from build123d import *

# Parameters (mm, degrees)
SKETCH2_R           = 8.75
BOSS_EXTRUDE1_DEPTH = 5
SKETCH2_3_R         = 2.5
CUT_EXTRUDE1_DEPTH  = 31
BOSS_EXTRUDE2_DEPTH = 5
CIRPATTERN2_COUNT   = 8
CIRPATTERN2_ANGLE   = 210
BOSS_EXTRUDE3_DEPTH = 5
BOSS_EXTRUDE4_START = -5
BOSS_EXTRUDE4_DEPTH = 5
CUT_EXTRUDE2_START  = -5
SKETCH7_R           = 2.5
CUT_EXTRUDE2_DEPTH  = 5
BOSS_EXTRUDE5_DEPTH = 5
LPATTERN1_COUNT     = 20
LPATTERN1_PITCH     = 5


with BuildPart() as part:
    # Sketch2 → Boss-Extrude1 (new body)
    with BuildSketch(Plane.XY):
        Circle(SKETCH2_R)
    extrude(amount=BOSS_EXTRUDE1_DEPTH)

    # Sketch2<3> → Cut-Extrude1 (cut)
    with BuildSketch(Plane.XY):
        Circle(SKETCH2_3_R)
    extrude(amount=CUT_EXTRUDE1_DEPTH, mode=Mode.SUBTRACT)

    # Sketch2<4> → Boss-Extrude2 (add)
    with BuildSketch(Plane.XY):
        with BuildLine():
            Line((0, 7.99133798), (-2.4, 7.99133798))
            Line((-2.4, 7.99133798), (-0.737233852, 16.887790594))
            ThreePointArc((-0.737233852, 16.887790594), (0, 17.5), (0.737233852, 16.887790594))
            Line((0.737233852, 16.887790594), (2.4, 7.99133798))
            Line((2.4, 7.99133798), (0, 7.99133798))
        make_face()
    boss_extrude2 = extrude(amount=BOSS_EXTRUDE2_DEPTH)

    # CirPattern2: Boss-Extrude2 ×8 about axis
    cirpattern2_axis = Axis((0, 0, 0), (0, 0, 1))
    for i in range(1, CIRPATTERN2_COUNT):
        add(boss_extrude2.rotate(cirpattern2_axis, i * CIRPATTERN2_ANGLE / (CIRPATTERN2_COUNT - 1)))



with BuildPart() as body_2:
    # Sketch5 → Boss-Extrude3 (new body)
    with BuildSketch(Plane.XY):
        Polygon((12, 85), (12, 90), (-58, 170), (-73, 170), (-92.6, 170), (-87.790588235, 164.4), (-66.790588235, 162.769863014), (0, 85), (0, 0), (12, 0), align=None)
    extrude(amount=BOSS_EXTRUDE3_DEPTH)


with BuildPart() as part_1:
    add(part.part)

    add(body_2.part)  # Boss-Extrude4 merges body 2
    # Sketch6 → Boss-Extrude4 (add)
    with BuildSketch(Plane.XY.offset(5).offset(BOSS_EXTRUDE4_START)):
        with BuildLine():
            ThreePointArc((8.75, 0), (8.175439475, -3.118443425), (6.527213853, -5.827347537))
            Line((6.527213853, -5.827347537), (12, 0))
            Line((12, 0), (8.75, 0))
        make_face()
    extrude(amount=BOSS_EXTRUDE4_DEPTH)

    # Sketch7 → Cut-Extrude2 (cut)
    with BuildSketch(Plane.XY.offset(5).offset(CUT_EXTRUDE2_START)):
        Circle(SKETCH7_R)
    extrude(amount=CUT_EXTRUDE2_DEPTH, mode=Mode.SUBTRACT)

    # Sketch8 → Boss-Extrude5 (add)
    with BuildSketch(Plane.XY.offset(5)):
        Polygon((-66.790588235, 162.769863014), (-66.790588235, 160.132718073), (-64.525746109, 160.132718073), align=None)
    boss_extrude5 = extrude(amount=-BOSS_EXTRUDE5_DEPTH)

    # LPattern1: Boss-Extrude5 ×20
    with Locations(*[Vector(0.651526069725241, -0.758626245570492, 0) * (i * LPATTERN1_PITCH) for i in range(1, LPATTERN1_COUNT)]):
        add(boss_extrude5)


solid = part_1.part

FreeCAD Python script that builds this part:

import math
import FreeCAD as App
import Part
import Sketcher
Q = App.Units.Quantity

doc = App.newDocument("Part")
body = doc.addObject("PartDesign::Body", "Body")

# Sketch on XY plane
sketch1 = body.newObject("Sketcher::SketchObject", "Sketch")
sketch1.AttachmentSupport = (doc.getObject("XY_Plane"), [""])
sketch1.MapMode = "FlatFace"
sketch1.addGeometry(Part.Circle(App.Vector(0, 0, 0), App.Vector(0, 0, 1), 8.75), False)
sketch1.addConstraint([
    Sketcher.Constraint("Coincident", 0, 3, -1, 1),
    Sketcher.Constraint("Diameter", 0, Q("17.5 mm")),
])
pad1 = body.newObject("PartDesign::Pad", "Pad")
pad1.Profile = sketch1
pad1.Length = 5

# Sketch on XY plane
sketch2 = body.newObject("Sketcher::SketchObject", "Sketch001")
sketch2.AttachmentSupport = (doc.getObject("XY_Plane"), [""])
sketch2.MapMode = "FlatFace"
sketch2.addGeometry(Part.Circle(App.Vector(0, 0, 0), App.Vector(0, 0, 1), 2.5), False)
sketch2.addConstraint([
    Sketcher.Constraint("Coincident", 0, 3, -1, 1),
    Sketcher.Constraint("Diameter", 0, Q("5 mm")),
])
pocket1 = body.newObject("PartDesign::Pocket", "Pocket")
pocket1.Profile = sketch2
pocket1.Length = 31
pocket1.Reversed = True

# Sketch on XY plane
sketch3 = body.newObject("Sketcher::SketchObject", "Sketch002")
sketch3.AttachmentSupport = (doc.getObject("XY_Plane"), [""])
sketch3.MapMode = "FlatFace"
sketch3.addGeometry([
    Part.LineSegment(App.Vector(-0.737234, 16.887791, 0), App.Vector(-2.4, 7.991338, 0)),
    Part.LineSegment(App.Vector(-2.4, 7.991338, 0), App.Vector(2.4, 7.991338, 0)),
    Part.LineSegment(App.Vector(2.4, 7.991338, 0), App.Vector(0.737234, 16.887791, 0)),
    Part.ArcOfCircle(Part.Circle(App.Vector(0, 16.75, 0), App.Vector(0, 0, 1), 0.75), math.radians(10.586561), math.radians(169.413439)),
], False)
sketch3.addConstraint([
    Sketcher.Constraint("Coincident", 0, 2, 1, 1),
    Sketcher.Constraint("Coincident", 1, 2, 2, 1),
    Sketcher.Constraint("Coincident", 2, 2, 3, 1),
    Sketcher.Constraint("Coincident", 3, 2, 0, 1),
    Sketcher.Constraint("Horizontal", 1),
    Sketcher.Constraint("PointOnObject", 3, 3, -2),
    Sketcher.Constraint("Radius", 3, Q("0.75 mm")),
    Sketcher.Constraint("DistanceX", 1, 1, 1, 2, Q("4.8 mm")),
    Sketcher.Constraint("DistanceX", 0, 2, -1, 1, Q("2.4 mm")),
    Sketcher.Constraint("DistanceY", -1, 1, 3, 3, Q("16.75 mm")),
    Sketcher.Constraint("DistanceY", -1, 1, 2, 2, Q("16.887791 mm")),
    Sketcher.Constraint("DistanceY", -1, 1, 3, 2, Q("16.887791 mm")),
    Sketcher.Constraint("Distance", 0, Q("9.050506 mm")),
])
pad2 = body.newObject("PartDesign::Pad", "Pad001")
pad2.Profile = sketch3
pad2.Length = 5
doc.recompute()

polarpattern = body.newObject("PartDesign::PolarPattern", "PolarPattern")
polarpattern.Originals = [pad2]
polarpattern.Axis = (doc.getObject("Z_Axis"), [""])
polarpattern.Angle = 210
polarpattern.Occurrences = 8
body.Tip = polarpattern
body2 = doc.addObject("PartDesign::Body", "Body001")

# Sketch on XY plane
sketch4 = body2.newObject("Sketcher::SketchObject", "Sketch003")
sketch4.AttachmentSupport = (doc.getObject("XY_Plane001"), [""])
sketch4.MapMode = "FlatFace"
sketch4.addGeometry([
    Part.LineSegment(App.Vector(12, 90, 0), App.Vector(-58, 170, 0)),  # 0
    Part.LineSegment(App.Vector(-58, 170, 0), App.Vector(-92.6, 170, 0)),  # 1
    Part.LineSegment(App.Vector(-92.6, 170, 0), App.Vector(-87.790588, 164.4, 0)),  # 2
    Part.LineSegment(App.Vector(-87.790588, 164.4, 0), App.Vector(-66.790588, 162.769863, 0)),  # 3
    Part.LineSegment(App.Vector(-66.790588, 162.769863, 0), App.Vector(0, 85, 0)),  # 4
    Part.LineSegment(App.Vector(0, 85, 0), App.Vector(0, 0, 0)),  # 5
    Part.LineSegment(App.Vector(0, 0, 0), App.Vector(12, 0, 0)),  # 6
    Part.LineSegment(App.Vector(12, 0, 0), App.Vector(12, 90, 0)),  # 7
], False)
sketch4.addConstraint([
    Sketcher.Constraint("Coincident", 0, 2, 1, 1),
    Sketcher.Constraint("Coincident", 1, 2, 2, 1),
    Sketcher.Constraint("Coincident", 2, 2, 3, 1),
    Sketcher.Constraint("Coincident", 3, 2, 4, 1),
    Sketcher.Constraint("Coincident", 4, 2, 5, 1),
    Sketcher.Constraint("Coincident", 5, 2, 6, 1),
    Sketcher.Constraint("Coincident", 6, 2, 7, 1),
    Sketcher.Constraint("Coincident", 7, 2, 0, 1),
    Sketcher.Constraint("Horizontal", 1),
    Sketcher.Constraint("Vertical", 5),
    Sketcher.Constraint("Horizontal", 6),
    Sketcher.Constraint("Vertical", 7),
    Sketcher.Constraint("Coincident", 5, 2, -1, 1),
    Sketcher.Constraint("Parallel", 2, 4),
    Sketcher.Constraint("DistanceX", 6, 1, 6, 2, Q("12 mm")),
    Sketcher.Constraint("DistanceY", 5, 2, 5, 1, Q("85 mm")),
    Sketcher.Constraint("DistanceY", 7, 1, 7, 2, Q("90 mm")),
    Sketcher.Constraint("DistanceX", 1, 2, 1, 1, Q("34.6 mm")),
    Sketcher.Constraint("DistanceX", 0, 2, -1, 1, Q("58 mm")),
    Sketcher.Constraint("DistanceY", -1, 1, 0, 2, Q("170 mm")),
    Sketcher.Constraint("DistanceX", 2, 2, 3, 2, Q("21 mm")),
    Sketcher.Constraint("DistanceY", -1, 1, 2, 2, Q("164.4 mm")),
    Sketcher.Constraint("Distance", 4, Q("102.514069 mm")),
])
pad3 = body2.newObject("PartDesign::Pad", "Pad002")
pad3.Profile = sketch4
pad3.Length = 5
doc.recompute()

boolean = body.newObject("PartDesign::Boolean", "Boolean")
boolean.Type = "Fuse"
boolean.addObjects([body2])

# Sketch on XY plane
sketch5 = body.newObject("Sketcher::SketchObject", "Sketch004")
sketch5.AttachmentSupport = (doc.getObject("XY_Plane"), [""])
sketch5.MapMode = "FlatFace"
sketch5.addGeometry([
    Part.ArcOfCircle(Part.Circle(App.Vector(0, 0, 0), App.Vector(0, 0, 1), 8.75), math.radians(-41.75775), math.radians(0)),
    Part.LineSegment(App.Vector(6.527214, -5.827348, 0), App.Vector(12, 0, 0)),
    Part.LineSegment(App.Vector(12, 0, 0), App.Vector(8.75, 0, 0)),
], False)
sketch5.addConstraint([
    Sketcher.Constraint("Coincident", 0, 1, 1, 1),
    Sketcher.Constraint("Coincident", 1, 2, 2, 1),
    Sketcher.Constraint("Coincident", 2, 2, 0, 2),
    Sketcher.Constraint("Horizontal", 2),
    Sketcher.Constraint("Coincident", 0, 3, -1, 1),
    Sketcher.Constraint("PointOnObject", 1, 2, -1),
    Sketcher.Constraint("Radius", 0, Q("8.75 mm")),
    Sketcher.Constraint("DistanceX", -1, 1, 1, 2, Q("12 mm")),
    Sketcher.Constraint("Distance", 1, Q("7.994333 mm")),
])
pad4 = body.newObject("PartDesign::Pad", "Pad003")
pad4.Profile = sketch5
pad4.Length = 5

# Sketch on XY plane
sketch6 = body.newObject("Sketcher::SketchObject", "Sketch005")
sketch6.AttachmentSupport = (doc.getObject("XY_Plane"), [""])
sketch6.MapMode = "FlatFace"
sketch6.addGeometry(Part.Circle(App.Vector(0, 0, 0), App.Vector(0, 0, 1), 2.5), False)
sketch6.addConstraint([
    Sketcher.Constraint("Coincident", 0, 3, -1, 1),
    Sketcher.Constraint("Diameter", 0, Q("5 mm")),
])
pocket2 = body.newObject("PartDesign::Pocket", "Pocket001")
pocket2.Profile = sketch6
pocket2.Length = 5
pocket2.Reversed = True

# Sketch on XY plane
sketch7 = body.newObject("Sketcher::SketchObject", "Sketch006")
sketch7.AttachmentSupport = (doc.getObject("XY_Plane"), [""])
sketch7.MapMode = "FlatFace"
sketch7.AttachmentOffset = App.Placement(App.Vector(0, 0, 5), App.Rotation())
sketch7.addGeometry([
    Part.LineSegment(App.Vector(-66.790588, 162.769863, 0), App.Vector(-66.790588, 160.132718, 0)),
    Part.LineSegment(App.Vector(-66.790588, 160.132718, 0), App.Vector(-64.525746, 160.132718, 0)),
    Part.LineSegment(App.Vector(-64.525746, 160.132718, 0), App.Vector(-66.790588, 162.769863, 0)),
], False)
sketch7.addConstraint([
    Sketcher.Constraint("Coincident", 0, 2, 1, 1),
    Sketcher.Constraint("Coincident", 1, 2, 2, 1),
    Sketcher.Constraint("Coincident", 2, 2, 0, 1),
    Sketcher.Constraint("Vertical", 0),
    Sketcher.Constraint("Horizontal", 1),
    Sketcher.Constraint("Distance", 2, Q("3.476211 mm")),
    Sketcher.Constraint("DistanceX", 1, 1, 1, 2, Q("2.264842 mm")),
    Sketcher.Constraint("DistanceX", 0, 2, -1, 1, Q("66.790588 mm")),
    Sketcher.Constraint("DistanceY", -1, 1, 0, 2, Q("160.132718 mm")),
])
pad5 = body.newObject("PartDesign::Pad", "Pad004")
pad5.Profile = sketch7
pad5.Length = 5
pad5.Reversed = True
doc.recompute()

datumline = body.newObject("PartDesign::Line", "DatumLine")
datumline.Placement = App.Placement(App.Vector(0, 0, 0), App.Rotation(App.Vector(0, 0, 1), App.Vector(0.65152607, -0.758626246, 0)))
linearpattern = body.newObject("PartDesign::LinearPattern", "LinearPattern")
linearpattern.Originals = [pad5]
linearpattern.Direction = (datumline, [""])
linearpattern.Mode = "offset"
linearpattern.Offset = 5
linearpattern.Occurrences = 20
body.Tip = linearpattern

doc.recompute()
